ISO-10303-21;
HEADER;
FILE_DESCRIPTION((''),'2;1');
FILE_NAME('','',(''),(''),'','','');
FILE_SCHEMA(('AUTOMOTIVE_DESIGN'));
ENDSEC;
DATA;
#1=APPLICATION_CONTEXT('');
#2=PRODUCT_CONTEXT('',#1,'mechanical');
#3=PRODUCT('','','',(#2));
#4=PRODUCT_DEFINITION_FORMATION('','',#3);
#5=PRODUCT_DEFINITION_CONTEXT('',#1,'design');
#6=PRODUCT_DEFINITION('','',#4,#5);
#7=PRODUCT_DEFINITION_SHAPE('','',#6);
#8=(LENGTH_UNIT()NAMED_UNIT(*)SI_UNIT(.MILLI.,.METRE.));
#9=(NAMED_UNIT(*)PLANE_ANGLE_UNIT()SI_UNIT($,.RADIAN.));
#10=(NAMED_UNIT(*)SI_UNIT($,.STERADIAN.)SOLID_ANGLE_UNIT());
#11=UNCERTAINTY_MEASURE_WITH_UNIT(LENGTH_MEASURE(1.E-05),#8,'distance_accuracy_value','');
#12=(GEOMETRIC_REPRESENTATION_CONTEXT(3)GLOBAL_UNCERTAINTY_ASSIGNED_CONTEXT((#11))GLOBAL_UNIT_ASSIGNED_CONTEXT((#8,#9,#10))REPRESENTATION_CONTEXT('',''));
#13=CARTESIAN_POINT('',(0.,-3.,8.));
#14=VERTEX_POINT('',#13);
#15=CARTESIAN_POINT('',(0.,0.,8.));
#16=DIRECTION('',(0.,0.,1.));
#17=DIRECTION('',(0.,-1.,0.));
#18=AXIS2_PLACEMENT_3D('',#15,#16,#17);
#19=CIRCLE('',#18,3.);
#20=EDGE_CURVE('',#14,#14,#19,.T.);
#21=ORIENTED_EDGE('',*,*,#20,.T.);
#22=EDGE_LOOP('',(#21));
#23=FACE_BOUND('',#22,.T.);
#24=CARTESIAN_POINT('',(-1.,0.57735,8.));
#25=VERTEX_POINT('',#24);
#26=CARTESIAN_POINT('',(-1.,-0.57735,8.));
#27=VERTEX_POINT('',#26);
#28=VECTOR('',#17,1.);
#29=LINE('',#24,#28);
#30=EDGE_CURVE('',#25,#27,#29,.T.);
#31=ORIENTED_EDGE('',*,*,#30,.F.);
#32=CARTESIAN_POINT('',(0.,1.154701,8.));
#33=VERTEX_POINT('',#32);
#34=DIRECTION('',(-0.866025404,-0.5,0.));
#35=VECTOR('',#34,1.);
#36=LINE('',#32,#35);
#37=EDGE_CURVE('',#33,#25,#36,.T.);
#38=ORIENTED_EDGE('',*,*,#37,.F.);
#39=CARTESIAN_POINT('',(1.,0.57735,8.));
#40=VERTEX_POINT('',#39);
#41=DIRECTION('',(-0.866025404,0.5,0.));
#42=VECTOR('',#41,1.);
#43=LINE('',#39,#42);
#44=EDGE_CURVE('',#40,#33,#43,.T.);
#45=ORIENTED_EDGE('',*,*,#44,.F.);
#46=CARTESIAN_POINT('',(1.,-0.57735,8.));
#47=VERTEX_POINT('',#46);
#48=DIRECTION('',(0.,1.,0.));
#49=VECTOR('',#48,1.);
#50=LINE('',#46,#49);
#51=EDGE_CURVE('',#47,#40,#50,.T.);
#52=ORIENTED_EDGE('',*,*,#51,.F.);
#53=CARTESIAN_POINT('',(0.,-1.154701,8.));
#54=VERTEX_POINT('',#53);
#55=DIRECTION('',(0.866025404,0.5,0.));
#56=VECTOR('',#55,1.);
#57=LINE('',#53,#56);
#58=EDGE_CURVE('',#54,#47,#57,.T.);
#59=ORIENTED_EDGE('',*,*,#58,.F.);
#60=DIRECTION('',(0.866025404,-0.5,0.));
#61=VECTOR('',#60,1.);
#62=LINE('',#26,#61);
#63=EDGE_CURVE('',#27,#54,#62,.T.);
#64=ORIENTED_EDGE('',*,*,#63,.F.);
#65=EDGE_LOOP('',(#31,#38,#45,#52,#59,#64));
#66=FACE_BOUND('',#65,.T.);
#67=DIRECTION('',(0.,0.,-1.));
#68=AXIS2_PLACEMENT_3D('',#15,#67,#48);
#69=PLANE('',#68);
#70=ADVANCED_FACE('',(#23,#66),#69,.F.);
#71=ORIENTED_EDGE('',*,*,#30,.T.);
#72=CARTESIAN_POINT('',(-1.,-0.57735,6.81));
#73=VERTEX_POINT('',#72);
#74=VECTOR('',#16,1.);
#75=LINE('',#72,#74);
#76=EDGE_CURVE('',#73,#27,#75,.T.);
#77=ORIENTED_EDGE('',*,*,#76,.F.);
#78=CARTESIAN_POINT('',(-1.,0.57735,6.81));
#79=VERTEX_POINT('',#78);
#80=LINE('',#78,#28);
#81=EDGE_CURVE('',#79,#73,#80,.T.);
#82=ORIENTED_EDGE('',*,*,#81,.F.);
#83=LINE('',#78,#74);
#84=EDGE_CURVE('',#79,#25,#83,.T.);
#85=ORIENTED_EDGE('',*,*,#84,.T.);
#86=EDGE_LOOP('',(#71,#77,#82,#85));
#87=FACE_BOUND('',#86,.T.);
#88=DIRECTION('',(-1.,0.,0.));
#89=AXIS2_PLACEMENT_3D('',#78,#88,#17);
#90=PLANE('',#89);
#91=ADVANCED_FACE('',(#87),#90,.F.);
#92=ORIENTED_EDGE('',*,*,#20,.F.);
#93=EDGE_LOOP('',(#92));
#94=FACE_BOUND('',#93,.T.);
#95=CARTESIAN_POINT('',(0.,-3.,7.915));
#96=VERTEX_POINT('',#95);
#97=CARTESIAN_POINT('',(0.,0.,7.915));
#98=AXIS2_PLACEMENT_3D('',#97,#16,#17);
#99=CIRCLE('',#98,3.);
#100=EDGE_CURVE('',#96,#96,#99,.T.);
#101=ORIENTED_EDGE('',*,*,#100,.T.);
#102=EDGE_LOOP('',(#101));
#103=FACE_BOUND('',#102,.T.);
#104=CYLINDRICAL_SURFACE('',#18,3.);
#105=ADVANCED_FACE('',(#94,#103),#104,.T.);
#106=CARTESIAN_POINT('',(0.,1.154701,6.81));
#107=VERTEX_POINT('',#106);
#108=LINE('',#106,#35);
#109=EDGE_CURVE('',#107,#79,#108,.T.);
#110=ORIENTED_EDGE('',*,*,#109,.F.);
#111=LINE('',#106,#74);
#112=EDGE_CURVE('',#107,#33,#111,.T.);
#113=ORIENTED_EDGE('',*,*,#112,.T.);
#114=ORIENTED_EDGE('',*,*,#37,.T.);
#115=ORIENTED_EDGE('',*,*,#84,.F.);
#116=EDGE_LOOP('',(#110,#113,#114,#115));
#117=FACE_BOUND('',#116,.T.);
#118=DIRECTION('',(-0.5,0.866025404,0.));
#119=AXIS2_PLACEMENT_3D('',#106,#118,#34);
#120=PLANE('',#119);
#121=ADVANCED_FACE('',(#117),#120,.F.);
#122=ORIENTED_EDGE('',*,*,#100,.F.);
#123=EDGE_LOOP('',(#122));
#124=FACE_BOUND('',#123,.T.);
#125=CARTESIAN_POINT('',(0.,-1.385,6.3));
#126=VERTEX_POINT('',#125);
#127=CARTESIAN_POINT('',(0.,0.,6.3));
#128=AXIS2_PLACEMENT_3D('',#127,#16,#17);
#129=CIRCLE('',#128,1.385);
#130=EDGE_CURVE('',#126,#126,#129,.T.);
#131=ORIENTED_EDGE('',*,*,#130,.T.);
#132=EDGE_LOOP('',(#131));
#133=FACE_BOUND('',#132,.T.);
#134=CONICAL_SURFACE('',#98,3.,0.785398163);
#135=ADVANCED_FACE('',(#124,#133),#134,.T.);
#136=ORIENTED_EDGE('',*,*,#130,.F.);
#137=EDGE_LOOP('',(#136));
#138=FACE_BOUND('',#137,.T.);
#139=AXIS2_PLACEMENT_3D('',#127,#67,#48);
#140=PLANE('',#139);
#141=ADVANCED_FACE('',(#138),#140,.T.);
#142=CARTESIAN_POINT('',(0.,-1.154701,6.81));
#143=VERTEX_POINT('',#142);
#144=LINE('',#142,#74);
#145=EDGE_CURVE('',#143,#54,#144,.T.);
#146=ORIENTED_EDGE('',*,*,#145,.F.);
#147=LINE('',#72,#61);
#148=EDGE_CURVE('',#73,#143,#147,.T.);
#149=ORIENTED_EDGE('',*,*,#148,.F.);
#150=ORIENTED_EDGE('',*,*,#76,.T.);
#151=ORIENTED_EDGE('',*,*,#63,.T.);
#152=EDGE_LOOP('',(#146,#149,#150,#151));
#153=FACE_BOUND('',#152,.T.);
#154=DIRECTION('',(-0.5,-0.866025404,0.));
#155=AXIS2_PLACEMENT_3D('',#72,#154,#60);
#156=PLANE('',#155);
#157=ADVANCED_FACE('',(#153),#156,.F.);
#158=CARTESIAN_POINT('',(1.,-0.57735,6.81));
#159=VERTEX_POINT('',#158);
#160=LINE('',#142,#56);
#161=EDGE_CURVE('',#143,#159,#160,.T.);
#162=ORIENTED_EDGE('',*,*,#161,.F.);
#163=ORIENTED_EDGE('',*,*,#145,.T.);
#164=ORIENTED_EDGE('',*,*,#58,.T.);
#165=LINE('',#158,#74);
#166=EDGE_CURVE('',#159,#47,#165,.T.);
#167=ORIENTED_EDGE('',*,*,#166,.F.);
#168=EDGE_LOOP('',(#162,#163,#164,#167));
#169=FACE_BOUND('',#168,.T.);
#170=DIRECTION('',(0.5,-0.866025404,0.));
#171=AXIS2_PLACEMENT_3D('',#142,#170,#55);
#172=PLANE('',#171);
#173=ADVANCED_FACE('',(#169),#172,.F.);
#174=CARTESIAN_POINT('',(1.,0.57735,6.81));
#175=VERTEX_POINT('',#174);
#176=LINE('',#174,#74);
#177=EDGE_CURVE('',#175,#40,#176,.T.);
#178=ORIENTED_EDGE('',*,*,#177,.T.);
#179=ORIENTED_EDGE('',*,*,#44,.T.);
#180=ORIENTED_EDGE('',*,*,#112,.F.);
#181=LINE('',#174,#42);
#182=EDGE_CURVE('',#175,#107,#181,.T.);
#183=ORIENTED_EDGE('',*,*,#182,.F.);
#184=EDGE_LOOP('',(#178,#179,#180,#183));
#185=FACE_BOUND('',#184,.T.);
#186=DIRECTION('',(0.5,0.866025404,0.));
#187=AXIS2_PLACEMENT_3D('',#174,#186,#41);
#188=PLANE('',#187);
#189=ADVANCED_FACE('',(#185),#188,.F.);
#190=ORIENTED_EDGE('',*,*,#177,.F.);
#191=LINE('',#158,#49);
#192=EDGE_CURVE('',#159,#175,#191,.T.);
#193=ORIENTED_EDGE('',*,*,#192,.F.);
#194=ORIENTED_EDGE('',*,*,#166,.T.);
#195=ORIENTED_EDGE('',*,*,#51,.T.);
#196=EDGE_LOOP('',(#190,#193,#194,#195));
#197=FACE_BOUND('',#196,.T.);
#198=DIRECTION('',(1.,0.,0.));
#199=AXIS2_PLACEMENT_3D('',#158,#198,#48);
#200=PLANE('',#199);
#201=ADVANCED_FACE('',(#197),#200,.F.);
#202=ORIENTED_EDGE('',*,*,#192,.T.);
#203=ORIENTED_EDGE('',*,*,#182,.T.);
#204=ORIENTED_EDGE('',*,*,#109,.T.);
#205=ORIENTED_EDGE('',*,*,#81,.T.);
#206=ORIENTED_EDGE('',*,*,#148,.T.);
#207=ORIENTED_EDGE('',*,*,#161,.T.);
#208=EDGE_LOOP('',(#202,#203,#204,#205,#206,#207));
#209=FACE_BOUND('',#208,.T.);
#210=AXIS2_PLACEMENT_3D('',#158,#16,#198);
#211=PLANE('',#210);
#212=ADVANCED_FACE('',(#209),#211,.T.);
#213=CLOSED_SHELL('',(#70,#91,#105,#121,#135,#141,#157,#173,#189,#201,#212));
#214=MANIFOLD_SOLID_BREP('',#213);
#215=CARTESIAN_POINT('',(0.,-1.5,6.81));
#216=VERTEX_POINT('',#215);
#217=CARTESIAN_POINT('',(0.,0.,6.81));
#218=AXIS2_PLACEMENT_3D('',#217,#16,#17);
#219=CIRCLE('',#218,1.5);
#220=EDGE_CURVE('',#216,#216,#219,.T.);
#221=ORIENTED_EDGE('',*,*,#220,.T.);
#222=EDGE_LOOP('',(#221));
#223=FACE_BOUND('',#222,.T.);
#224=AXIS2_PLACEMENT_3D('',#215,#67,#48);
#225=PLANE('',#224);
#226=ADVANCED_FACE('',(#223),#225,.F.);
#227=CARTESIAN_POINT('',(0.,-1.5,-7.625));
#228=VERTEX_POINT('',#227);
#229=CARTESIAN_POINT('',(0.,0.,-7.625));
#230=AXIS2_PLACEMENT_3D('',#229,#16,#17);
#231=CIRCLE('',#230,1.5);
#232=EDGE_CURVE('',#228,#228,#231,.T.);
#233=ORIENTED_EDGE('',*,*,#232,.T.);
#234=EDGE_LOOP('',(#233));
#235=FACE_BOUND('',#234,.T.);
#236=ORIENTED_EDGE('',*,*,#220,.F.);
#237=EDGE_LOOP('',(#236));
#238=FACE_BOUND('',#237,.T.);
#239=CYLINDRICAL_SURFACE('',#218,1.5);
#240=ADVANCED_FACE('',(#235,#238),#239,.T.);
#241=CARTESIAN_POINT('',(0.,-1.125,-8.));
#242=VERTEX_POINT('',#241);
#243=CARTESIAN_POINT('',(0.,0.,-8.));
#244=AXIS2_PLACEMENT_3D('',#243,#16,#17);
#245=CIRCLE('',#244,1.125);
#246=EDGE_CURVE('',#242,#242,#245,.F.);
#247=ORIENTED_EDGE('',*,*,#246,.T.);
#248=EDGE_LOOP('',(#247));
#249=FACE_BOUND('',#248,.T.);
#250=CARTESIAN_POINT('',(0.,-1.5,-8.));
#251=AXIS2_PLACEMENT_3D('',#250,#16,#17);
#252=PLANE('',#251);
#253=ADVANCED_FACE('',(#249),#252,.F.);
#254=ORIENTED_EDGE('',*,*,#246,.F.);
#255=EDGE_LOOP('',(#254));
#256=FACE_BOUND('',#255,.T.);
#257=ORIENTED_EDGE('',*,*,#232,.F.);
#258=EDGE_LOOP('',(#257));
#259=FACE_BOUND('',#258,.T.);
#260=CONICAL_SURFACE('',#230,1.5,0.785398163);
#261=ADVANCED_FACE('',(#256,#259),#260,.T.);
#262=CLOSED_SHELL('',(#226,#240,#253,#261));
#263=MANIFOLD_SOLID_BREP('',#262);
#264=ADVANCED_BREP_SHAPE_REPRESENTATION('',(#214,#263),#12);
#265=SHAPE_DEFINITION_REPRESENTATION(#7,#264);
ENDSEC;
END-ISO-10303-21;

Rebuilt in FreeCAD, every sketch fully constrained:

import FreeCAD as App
import Part
import Sketcher

V = App.Vector
Q = App.Units.Quantity


def edges_at(feature, points):
    """Names of the edges that pass closest to the given points."""
    edges = feature.Shape.Edges
    near = lambda p: min(range(len(edges)), key=lambda i: edges[i].distToShape(Part.Vertex(*p))[0])
    return sorted({f"Edge{near(p) + 1}" for p in points})


def add_polygon(sketch, points):
    """Adds a closed chain of lines whose ends are joined by coincident constraints."""
    first, n = sketch.GeometryCount, len(points)
    for a, b in zip(points, points[1:] + points[:1]):
        sketch.addGeometry(Part.LineSegment(App.Vector(*a, 0), App.Vector(*b, 0)), False)
    for i in range(n):
        sketch.addConstraint(Sketcher.Constraint("Coincident", first + i, 2, first + (i + 1) % n, 1))

doc = App.newDocument("Part")
params = doc.addObject("Spreadsheet::Sheet", "Params")
for row, (alias, value) in enumerate([
    ("sketch1_width", "1.5 mm"),
    ("sketch1_height", "14.81 mm"),
    ("revolution_angle", "360 deg"),
    ("chamfer_size", "0.375 mm"),
    ("sketch2_width", "3 mm"),
    ("sketch2_height", "1.7 mm"),
    ("revolution2_angle", "360 deg"),
    ("pocket1_length", "1.19 mm"),
], start=1):
    params.set(f"A{row}", alias)
    params.set(f"B{row}", "=" + value)
    params.setAlias(f"B{row}", alias)

body = doc.addObject("PartDesign::Body", "Body")

# Sketch on YZ plane
sketch1 = body.newObject("Sketcher::SketchObject", "Sketch")
sketch1.AttachmentSupport = (doc.getObject("YZ_Plane"), [""])
sketch1.MapMode = "FlatFace"
add_polygon(sketch1, [(1.5, -8), (1.5, 6.8), (0, 6.8), (0, -8)])  # lines 0-3
sketch1.addConstraint(Sketcher.Constraint("Vertical", 0))
sketch1.addConstraint(Sketcher.Constraint("Horizontal", 1))
sketch1.addConstraint(Sketcher.Constraint("Vertical", 2))
sketch1.addConstraint(Sketcher.Constraint("Horizontal", 3))
sketch1.addConstraint(Sketcher.Constraint("PointOnObject", 1, 2, -2))
sketch1.addConstraint(Sketcher.Constraint("DistanceX", 1, 2, 1, 1, 1.5))
sketch1.addConstraint(Sketcher.Constraint("DistanceY", 2, 2, -1, 1, 8.0))
sketch1.addConstraint(Sketcher.Constraint("DistanceY", 0, 1, 0, 2, 14.81))
sketch1.setExpression("Constraints[9]", "Params.sketch1_width")
sketch1.setExpression("Constraints[11]", "Params.sketch1_height")
revolution = body.newObject("PartDesign::Revolution", "Revolution")
revolution.Profile = sketch1
revolution.ReferenceAxis = (sketch1, ["V_Axis"])
revolution.setExpression("Angle", "Params.revolution_angle")
doc.recompute()

chamfer = body.newObject("PartDesign::Chamfer", "Chamfer")
chamfer.Base = (revolution, edges_at(revolution, [(0, 1.5, -8)]))
chamfer.setExpression("Size", "Params.chamfer_size")
body2 = doc.addObject("PartDesign::Body", "Body001")

# Sketch on YZ plane
sketch2 = body2.newObject("Sketcher::SketchObject", "Sketch001")
sketch2.AttachmentSupport = (doc.getObject("YZ_Plane001"), [""])
sketch2.MapMode = "FlatFace"
add_polygon(sketch2, [(3, 7.92), (3, 8), (0, 8), (0, 6.3), (1.39, 6.3)])  # lines 0-4
sketch2.addConstraint(Sketcher.Constraint("Vertical", 0))
sketch2.addConstraint(Sketcher.Constraint("Horizontal", 1))
sketch2.addConstraint(Sketcher.Constraint("Vertical", 2))
sketch2.addConstraint(Sketcher.Constraint("Horizontal", 3))
sketch2.addConstraint(Sketcher.Constraint("PointOnObject", 1, 2, -2))
sketch2.addConstraint(Sketcher.Constraint("DistanceX", 1, 2, 1, 1, 3.0))
sketch2.addConstraint(Sketcher.Constraint("Angle", 4, Q("45 deg")))
sketch2.addConstraint(Sketcher.Constraint("DistanceY", 2, 2, 2, 1, 1.7))
sketch2.addConstraint(Sketcher.Constraint("DistanceY", -1, 1, 0, 2, 8.0))
sketch2.addConstraint(Sketcher.Constraint("DistanceX", 3, 1, 3, 2, 1.385))
sketch2.setExpression("Constraints[10]", "Params.sketch2_width")
sketch2.setExpression("Constraints[12]", "Params.sketch2_height")
revolution2 = body2.newObject("PartDesign::Revolution", "Revolution001")
revolution2.Profile = sketch2
revolution2.ReferenceAxis = (sketch2, ["V_Axis"])
revolution2.setExpression("Angle", "Params.revolution2_angle")

# Sketch on XY plane
sketch3 = body2.newObject("Sketcher::SketchObject", "Sketch002")
sketch3.AttachmentSupport = (doc.getObject("XY_Plane001"), [""])
sketch3.MapMode = "FlatFace"
sketch3.AttachmentOffset = App.Placement(V(0, 0, 8), App.Rotation())
add_polygon(sketch3, [(1, -0.6), (1, 0.6), (0, 1.2), (-1, 0.6), (-1, -0.6), (0, -1.2)])  # lines 0-5
sketch3.addConstraint(Sketcher.Constraint("Vertical", 0))
sketch3.addConstraint(Sketcher.Constraint("Vertical", 3))
sketch3.addConstraint(Sketcher.Constraint("Symmetric", 0, 2, 3, 2, -1, 1))
sketch3.addConstraint(Sketcher.Constraint("Symmetric", 1, 2, 4, 2, -1, 1))
sketch3.addConstraint(Sketcher.Constraint("PointOnObject", 1, 2, -2))
sketch3.addConstraint(Sketcher.Constraint("Parallel", 2, 5))
sketch3.addConstraint(Sketcher.Constraint("Horizontal", 0, 2, 2, 2))
sketch3.addConstraint(Sketcher.Constraint("Angle", 1, Q("150 deg")))
sketch3.addConstraint(Sketcher.Constraint("DistanceX", -1, 1, 0, 2, 1.0))
sketch3.addConstraint(Sketcher.Constraint("DistanceY", 0, 1, 0, 2, 1.154701))
pocket1 = body2.newObject("PartDesign::Pocket", "Pocket")
pocket1.Profile = sketch3
pocket1.setExpression("Length", "Params.pocket1_length")

doc.recompute()
